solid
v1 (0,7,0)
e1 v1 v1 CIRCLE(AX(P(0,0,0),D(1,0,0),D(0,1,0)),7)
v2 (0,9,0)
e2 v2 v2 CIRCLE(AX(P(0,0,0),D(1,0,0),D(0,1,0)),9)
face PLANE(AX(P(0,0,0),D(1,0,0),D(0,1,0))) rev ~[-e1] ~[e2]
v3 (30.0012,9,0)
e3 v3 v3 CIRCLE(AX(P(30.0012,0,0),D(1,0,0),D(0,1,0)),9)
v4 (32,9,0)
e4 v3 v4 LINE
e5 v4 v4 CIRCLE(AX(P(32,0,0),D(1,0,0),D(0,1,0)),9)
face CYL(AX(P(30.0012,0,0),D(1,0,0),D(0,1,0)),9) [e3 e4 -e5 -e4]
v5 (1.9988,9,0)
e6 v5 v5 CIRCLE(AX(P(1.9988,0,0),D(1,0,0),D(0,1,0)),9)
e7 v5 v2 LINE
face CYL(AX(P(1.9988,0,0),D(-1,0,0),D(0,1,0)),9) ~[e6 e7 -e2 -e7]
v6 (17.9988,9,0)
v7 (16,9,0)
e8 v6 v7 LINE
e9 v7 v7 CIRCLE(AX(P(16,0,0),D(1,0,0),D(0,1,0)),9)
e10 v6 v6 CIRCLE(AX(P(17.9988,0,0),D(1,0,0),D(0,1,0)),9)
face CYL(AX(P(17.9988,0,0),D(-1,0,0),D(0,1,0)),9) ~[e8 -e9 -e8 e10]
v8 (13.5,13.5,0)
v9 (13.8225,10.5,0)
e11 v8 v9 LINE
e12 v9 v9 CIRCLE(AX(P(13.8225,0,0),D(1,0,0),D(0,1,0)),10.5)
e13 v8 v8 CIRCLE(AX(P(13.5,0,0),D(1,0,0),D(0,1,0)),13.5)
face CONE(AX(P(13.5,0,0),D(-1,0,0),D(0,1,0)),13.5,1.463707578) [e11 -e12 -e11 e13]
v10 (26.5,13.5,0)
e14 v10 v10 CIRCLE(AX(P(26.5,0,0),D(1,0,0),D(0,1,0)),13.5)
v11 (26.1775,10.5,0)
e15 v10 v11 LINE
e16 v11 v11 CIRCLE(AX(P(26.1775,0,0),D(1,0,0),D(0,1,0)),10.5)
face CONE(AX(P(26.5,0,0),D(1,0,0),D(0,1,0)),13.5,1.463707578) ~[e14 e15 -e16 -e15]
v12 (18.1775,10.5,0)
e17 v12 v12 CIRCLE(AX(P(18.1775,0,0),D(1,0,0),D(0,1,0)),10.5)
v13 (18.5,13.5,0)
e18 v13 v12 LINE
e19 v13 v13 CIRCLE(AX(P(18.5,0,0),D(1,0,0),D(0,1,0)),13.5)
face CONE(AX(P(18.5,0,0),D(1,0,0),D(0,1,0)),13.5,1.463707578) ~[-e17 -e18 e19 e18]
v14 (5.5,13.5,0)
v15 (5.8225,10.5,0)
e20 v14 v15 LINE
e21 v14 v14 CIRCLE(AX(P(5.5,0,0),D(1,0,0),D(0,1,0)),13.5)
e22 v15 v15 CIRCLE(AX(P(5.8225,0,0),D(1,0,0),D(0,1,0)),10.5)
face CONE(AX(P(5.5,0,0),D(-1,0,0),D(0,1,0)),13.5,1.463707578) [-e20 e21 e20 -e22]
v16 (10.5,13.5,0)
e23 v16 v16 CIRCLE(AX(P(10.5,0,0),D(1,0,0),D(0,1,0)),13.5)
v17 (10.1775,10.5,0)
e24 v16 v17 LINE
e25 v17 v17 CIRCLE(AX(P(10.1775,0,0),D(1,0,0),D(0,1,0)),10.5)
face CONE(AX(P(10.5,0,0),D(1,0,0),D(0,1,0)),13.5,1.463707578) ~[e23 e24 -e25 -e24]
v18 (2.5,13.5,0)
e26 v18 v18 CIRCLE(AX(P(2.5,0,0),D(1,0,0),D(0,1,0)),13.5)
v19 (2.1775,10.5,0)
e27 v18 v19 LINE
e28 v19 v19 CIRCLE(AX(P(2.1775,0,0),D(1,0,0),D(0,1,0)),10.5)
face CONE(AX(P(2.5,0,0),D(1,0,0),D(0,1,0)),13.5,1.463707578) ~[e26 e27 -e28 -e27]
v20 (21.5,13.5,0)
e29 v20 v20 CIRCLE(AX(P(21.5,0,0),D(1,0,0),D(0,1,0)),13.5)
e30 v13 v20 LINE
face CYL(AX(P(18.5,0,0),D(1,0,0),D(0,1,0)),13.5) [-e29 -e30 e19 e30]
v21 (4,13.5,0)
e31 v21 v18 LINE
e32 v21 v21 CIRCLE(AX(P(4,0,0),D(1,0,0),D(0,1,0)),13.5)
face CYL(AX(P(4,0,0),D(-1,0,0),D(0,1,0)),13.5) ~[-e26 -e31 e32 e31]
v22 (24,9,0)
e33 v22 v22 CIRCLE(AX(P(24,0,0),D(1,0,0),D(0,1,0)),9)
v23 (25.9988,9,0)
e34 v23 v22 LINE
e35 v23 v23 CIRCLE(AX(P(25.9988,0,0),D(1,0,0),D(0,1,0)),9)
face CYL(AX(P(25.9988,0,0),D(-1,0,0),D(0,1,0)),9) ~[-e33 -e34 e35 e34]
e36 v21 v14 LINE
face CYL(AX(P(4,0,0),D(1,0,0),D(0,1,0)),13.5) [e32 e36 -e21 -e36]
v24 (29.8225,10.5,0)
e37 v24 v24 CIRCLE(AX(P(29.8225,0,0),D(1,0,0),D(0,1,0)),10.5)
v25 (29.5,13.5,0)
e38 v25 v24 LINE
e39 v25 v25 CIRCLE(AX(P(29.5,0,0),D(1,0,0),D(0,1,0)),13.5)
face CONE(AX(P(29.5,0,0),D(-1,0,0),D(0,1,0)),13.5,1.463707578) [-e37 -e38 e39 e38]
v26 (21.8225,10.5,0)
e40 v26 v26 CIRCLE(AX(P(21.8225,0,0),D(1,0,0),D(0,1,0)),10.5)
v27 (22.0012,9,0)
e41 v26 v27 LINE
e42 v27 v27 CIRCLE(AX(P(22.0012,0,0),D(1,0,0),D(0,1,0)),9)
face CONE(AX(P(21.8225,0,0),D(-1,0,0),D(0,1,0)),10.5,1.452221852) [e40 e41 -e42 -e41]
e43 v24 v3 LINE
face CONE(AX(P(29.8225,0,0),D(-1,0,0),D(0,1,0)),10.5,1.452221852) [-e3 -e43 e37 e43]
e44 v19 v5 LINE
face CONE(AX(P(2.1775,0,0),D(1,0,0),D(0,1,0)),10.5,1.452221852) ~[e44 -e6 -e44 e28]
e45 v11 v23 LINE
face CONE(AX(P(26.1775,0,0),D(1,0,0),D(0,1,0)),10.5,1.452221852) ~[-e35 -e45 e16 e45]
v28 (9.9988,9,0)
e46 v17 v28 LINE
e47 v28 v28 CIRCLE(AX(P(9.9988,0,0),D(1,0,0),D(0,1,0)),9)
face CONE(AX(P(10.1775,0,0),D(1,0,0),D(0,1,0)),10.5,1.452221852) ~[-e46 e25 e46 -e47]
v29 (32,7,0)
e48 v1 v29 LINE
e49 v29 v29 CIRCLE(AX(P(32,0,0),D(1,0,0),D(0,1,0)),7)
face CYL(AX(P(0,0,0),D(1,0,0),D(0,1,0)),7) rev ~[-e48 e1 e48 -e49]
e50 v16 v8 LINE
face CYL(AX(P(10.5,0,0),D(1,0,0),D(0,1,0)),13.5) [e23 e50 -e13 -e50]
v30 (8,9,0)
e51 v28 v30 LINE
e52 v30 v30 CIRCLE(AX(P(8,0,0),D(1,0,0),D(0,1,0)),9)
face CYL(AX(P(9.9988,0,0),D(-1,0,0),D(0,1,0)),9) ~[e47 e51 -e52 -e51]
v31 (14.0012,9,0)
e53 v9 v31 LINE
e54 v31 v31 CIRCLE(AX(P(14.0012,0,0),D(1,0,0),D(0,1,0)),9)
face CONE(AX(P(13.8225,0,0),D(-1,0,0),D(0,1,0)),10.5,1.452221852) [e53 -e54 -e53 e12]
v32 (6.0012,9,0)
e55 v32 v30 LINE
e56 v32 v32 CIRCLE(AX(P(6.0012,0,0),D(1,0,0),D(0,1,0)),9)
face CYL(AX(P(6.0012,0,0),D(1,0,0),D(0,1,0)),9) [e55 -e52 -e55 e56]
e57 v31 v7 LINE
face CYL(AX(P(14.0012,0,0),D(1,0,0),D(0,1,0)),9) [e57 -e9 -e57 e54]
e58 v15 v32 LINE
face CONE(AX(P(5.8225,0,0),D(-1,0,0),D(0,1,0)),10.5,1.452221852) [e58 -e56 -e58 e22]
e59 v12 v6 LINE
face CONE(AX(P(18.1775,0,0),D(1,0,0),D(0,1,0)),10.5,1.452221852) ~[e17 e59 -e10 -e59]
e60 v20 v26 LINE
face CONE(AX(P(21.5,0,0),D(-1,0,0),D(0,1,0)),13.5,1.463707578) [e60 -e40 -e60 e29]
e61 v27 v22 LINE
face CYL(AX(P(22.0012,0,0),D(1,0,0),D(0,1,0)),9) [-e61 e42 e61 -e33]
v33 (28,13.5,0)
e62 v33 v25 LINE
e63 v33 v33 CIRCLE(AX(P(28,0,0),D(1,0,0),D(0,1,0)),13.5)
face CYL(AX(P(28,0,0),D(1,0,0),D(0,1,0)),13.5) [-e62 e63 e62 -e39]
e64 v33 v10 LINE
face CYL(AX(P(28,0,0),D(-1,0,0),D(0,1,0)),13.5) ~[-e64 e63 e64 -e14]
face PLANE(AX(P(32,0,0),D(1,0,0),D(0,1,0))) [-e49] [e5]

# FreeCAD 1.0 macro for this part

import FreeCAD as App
import Part
import Sketcher
Q = App.Units.Quantity

doc = App.newDocument("Part")
body = doc.addObject("PartDesign::Body", "Body")

# Sketch on XY plane
sketch1 = body.newObject("Sketcher::SketchObject", "Sketch")
sketch1.AttachmentSupport = (doc.getObject("XY_Plane"), [""])
sketch1.MapMode = "FlatFace"
sketch1.addGeometry([
    Part.LineSegment(App.Vector(0, 9, 0), App.Vector(0, 7, 0)),  # 0
    Part.LineSegment(App.Vector(0, 7, 0), App.Vector(32, 7, 0)),  # 1
    Part.LineSegment(App.Vector(32, 7, 0), App.Vector(32, 9, 0)),  # 2
    Part.LineSegment(App.Vector(32, 9, 0), App.Vector(30, 9, 0)),  # 3
    Part.LineSegment(App.Vector(30, 9, 0), App.Vector(29.8, 10.5, 0)),  # 4
    Part.LineSegment(App.Vector(29.8, 10.5, 0), App.Vector(29.5, 13.5, 0)),  # 5
    Part.LineSegment(App.Vector(29.5, 13.5, 0), App.Vector(26.5, 13.5, 0)),  # 6
    Part.LineSegment(App.Vector(26.5, 13.5, 0), App.Vector(26.2, 10.5, 0)),  # 7
    Part.LineSegment(App.Vector(26.2, 10.5, 0), App.Vector(26, 9, 0)),  # 8
    Part.LineSegment(App.Vector(26, 9, 0), App.Vector(22, 9, 0)),  # 9
    Part.LineSegment(App.Vector(22, 9, 0), App.Vector(21.8, 10.5, 0)),  # 10
    Part.LineSegment(App.Vector(21.8, 10.5, 0), App.Vector(21.5, 13.5, 0)),  # 11
    Part.LineSegment(App.Vector(21.5, 13.5, 0), App.Vector(18.5, 13.5, 0)),  # 12
    Part.LineSegment(App.Vector(18.5, 13.5, 0), App.Vector(18.2, 10.5, 0)),  # 13
    Part.LineSegment(App.Vector(18.2, 10.5, 0), App.Vector(18, 9, 0)),  # 14
    Part.LineSegment(App.Vector(18, 9, 0), App.Vector(14, 9, 0)),  # 15
    Part.LineSegment(App.Vector(14, 9, 0), App.Vector(13.8, 10.5, 0)),  # 16
    Part.LineSegment(App.Vector(13.8, 10.5, 0), App.Vector(13.5, 13.5, 0)),  # 17
    Part.LineSegment(App.Vector(13.5, 13.5, 0), App.Vector(10.5, 13.5, 0)),  # 18
    Part.LineSegment(App.Vector(10.5, 13.5, 0), App.Vector(10.2, 10.5, 0)),  # 19
    Part.LineSegment(App.Vector(10.2, 10.5, 0), App.Vector(10, 9, 0)),  # 20
    Part.LineSegment(App.Vector(10, 9, 0), App.Vector(6, 9, 0)),  # 21
    Part.LineSegment(App.Vector(6, 9, 0), App.Vector(5.8, 10.5, 0)),  # 22
    Part.LineSegment(App.Vector(5.8, 10.5, 0), App.Vector(5.5, 13.5, 0)),  # 23
    Part.LineSegment(App.Vector(5.5, 13.5, 0), App.Vector(2.5, 13.5, 0)),  # 24
    Part.LineSegment(App.Vector(2.5, 13.5, 0), App.Vector(2.2, 10.5, 0)),  # 25
    Part.LineSegment(App.Vector(2.2, 10.5, 0), App.Vector(2, 9, 0)),  # 26
    Part.LineSegment(App.Vector(2, 9, 0), App.Vector(0, 9, 0)),  # 27
], False)
sketch1.addConstraint([
    Sketcher.Constraint("Coincident", 0, 2, 1, 1),
    Sketcher.Constraint("Coincident", 1, 2, 2, 1),
    Sketcher.Constraint("Coincident", 2, 2, 3, 1),
    Sketcher.Constraint("Coincident", 3, 2, 4, 1),
    Sketcher.Constraint("Coincident", 4, 2, 5, 1),
    Sketcher.Constraint("Coincident", 5, 2, 6, 1),
    Sketcher.Constraint("Coincident", 6, 2, 7, 1),
    Sketcher.Constraint("Coincident", 7, 2, 8, 1),
    Sketcher.Constraint("Coincident", 8, 2, 9, 1),
    Sketcher.Constraint("Coincident", 9, 2, 10, 1),
    Sketcher.Constraint("Coincident", 10, 2, 11, 1),
    Sketcher.Constraint("Coincident", 11, 2, 12, 1),
    Sketcher.Constraint("Coincident", 12, 2, 13, 1),
    Sketcher.Constraint("Coincident", 13, 2, 14, 1),
    Sketcher.Constraint("Coincident", 14, 2, 15, 1),
    Sketcher.Constraint("Coincident", 15, 2, 16, 1),
    Sketcher.Constraint("Coincident", 16, 2, 17, 1),
    Sketcher.Constraint("Coincident", 17, 2, 18, 1),
    Sketcher.Constraint("Coincident", 18, 2, 19, 1),
    Sketcher.Constraint("Coincident", 19, 2, 20, 1),
    Sketcher.Constraint("Coincident", 20, 2, 21, 1),
    Sketcher.Constraint("Coincident", 21, 2, 22, 1),
    Sketcher.Constraint("Coincident", 22, 2, 23, 1),
    Sketcher.Constraint("Coincident", 23, 2, 24, 1),
    Sketcher.Constraint("Coincident", 24, 2, 25, 1),
    Sketcher.Constraint("Coincident", 25, 2, 26, 1),
    Sketcher.Constraint("Coincident", 26, 2, 27, 1),
    Sketcher.Constraint("Coincident", 27, 2, 0, 1),
    Sketcher.Constraint("Vertical", 0),
    Sketcher.Constraint("Horizontal", 1),
    Sketcher.Constraint("Vertical", 2),
    Sketcher.Constraint("Horizontal", 3),
    Sketcher.Constraint("Horizontal", 6),
    Sketcher.Constraint("Horizontal", 9),
    Sketcher.Constraint("Horizontal", 12),
    Sketcher.Constraint("Horizontal", 15),
    Sketcher.Constraint("Horizontal", 18),
    Sketcher.Constraint("Horizontal", 21),
    Sketcher.Constraint("Horizontal", 24),
    Sketcher.Constraint("Horizontal", 27),
    Sketcher.Constraint("PointOnObject", 0, 2, -2),
    Sketcher.Constraint("Parallel", 4, 10),
    Sketcher.Constraint("Parallel", 5, 11),
    Sketcher.Constraint("Parallel", 7, 13),
    Sketcher.Constraint("Parallel", 8, 14),
    Sketcher.Constraint("Parallel", 10, 16),
    Sketcher.Constraint("Parallel", 11, 17),
    Sketcher.Constraint("Parallel", 13, 19),
    Sketcher.Constraint("Parallel", 14, 20),
    Sketcher.Constraint("Parallel", 16, 22),
    Sketcher.Constraint("Parallel", 17, 23),
    Sketcher.Constraint("Parallel", 19, 25),
    Sketcher.Constraint("Parallel", 20, 26),
    Sketcher.Constraint("Horizontal", 4, 2, 7, 2),
    Sketcher.Constraint("Horizontal", 3, 2, 8, 2),
    Sketcher.Constraint("Horizontal", 7, 2, 10, 2),
    Sketcher.Constraint("Horizontal", 6, 2, 11, 2),
    Sketcher.Constraint("Horizontal", 10, 2, 13, 2),
    Sketcher.Constraint("Horizontal", 9, 2, 14, 2),
    Sketcher.Constraint("Horizontal", 13, 2, 16, 2),
    Sketcher.Constraint("Horizontal", 12, 2, 17, 2),
    Sketcher.Constraint("Horizontal", 16, 2, 19, 2),
    Sketcher.Constraint("Horizontal", 15, 2, 20, 2),
    Sketcher.Constraint("Horizontal", 19, 2, 22, 2),
    Sketcher.Constraint("Horizontal", 18, 2, 23, 2),
    Sketcher.Constraint("Horizontal", 22, 2, 25, 2),
    Sketcher.Constraint("Horizontal", 21, 2, 26, 2),
    Sketcher.Constraint("Equal", 6, 12),
    Sketcher.Constraint("Equal", 9, 15),
    Sketcher.Constraint("Equal", 12, 18),
    Sketcher.Constraint("Equal", 15, 21),
    Sketcher.Constraint("Equal", 18, 24),
    Sketcher.Constraint("Equal", 3, 27),
    Sketcher.Constraint("Equal", 5, 7),
    Sketcher.Constraint("Equal", 4, 8),
    Sketcher.Constraint("DistanceX", 1, 1, 1, 2, Q("32 mm")),
    Sketcher.Constraint("DistanceX", 6, 2, 6, 1, Q("3 mm")),
    Sketcher.Constraint("DistanceY", 0, 2, 0, 1, Q("2 mm")),
    Sketcher.Constraint("DistanceY", 4, 2, 5, 2, Q("3 mm")),
    Sketcher.Constraint("DistanceY", 3, 2, 4, 2, Q("1.5 mm")),
    Sketcher.Constraint("DistanceY", -1, 1, 0, 2, Q("7 mm")),
    Sketcher.Constraint("DistanceX", 9, 2, 3, 2, Q("8 mm")),
    Sketcher.Constraint("DistanceX", 3, 2, 3, 1, Q("1.9988 mm")),
    Sketcher.Constraint("DistanceX", 7, 2, 4, 2, Q("3.645 mm")),
])
revolution = body.newObject("PartDesign::Revolution", "Revolution")
revolution.Profile = sketch1
revolution.ReferenceAxis = (sketch1, ["H_Axis"])
revolution.Angle = 360

doc.recompute()
